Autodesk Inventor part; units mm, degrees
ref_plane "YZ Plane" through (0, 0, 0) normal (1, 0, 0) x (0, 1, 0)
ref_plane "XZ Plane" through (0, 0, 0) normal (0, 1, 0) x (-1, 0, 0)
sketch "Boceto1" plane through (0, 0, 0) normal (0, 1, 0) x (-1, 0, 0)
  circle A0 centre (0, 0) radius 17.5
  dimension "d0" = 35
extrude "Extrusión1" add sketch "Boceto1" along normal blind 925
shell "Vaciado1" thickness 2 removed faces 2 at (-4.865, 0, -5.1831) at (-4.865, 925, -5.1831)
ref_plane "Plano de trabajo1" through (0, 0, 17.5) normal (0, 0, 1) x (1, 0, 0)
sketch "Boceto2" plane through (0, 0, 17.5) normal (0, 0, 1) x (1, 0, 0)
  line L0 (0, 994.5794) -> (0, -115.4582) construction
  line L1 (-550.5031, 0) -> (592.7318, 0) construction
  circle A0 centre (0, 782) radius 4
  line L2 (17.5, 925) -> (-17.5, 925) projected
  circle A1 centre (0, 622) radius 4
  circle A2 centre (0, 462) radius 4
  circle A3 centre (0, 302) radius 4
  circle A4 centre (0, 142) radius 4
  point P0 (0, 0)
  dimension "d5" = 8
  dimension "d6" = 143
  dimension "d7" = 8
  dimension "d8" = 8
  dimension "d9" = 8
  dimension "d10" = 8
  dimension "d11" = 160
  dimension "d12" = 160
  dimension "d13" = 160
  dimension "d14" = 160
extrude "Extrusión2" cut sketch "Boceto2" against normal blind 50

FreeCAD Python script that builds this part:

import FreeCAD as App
import Part
import Sketcher
Q = App.Units.Quantity


def faces_at(feature, points):
    """Names of the faces that lie closest to the given points."""
    faces = feature.Shape.Faces
    near = lambda p: min(range(len(faces)), key=lambda i: faces[i].distToShape(Part.Vertex(*p))[0])
    return sorted({f"Face{near(p) + 1}" for p in points})

doc = App.newDocument("Part")
body = doc.addObject("PartDesign::Body", "Body")

sketch1 = body.newObject("Sketcher::SketchObject", "Sketch")
sketch1.AttachmentSupport = (doc.getObject("XZ_Plane"), [""])
sketch1.MapMode = "FlatFace"
sketch1.addGeometry(Part.Circle(App.Vector(0, 0, 0), App.Vector(0, 0, 1), 18), False)
sketch1.addConstraint(Sketcher.Constraint("Coincident", 0, 3, -1, 1))
sketch1.addConstraint(Sketcher.Constraint("Diameter", 0, Q("35 mm")))
pad1 = body.newObject("PartDesign::Pad", "Pad")
pad1.Profile = sketch1
pad1.Length = 925
pad1.Reversed = True
doc.recompute()

thickness = body.newObject("PartDesign::Thickness", "Thickness")
thickness.Base = (pad1, faces_at(pad1, [(-4.865, 0, -5.183), (-4.865, 925, -5.183)]))
thickness.Value = 2
thickness.Reversed = True
thickness.Join = "Intersection"

sketch2 = body.newObject("Sketcher::SketchObject", "Sketch001")
sketch2.AttachmentSupport = (doc.getObject("XY_Plane"), [""])
sketch2.MapMode = "FlatFace"
sketch2.AttachmentOffset = App.Placement(App.Vector(0, 0, 17.5), App.Rotation())
sketch2.addGeometry(Part.Circle(App.Vector(0, 782, 0), App.Vector(0, 0, 1), 4), False)
sketch2.addGeometry(Part.Circle(App.Vector(0, 622, 0), App.Vector(0, 0, 1), 4), False)
sketch2.addGeometry(Part.Circle(App.Vector(0, 462, 0), App.Vector(0, 0, 1), 4), False)
sketch2.addGeometry(Part.Circle(App.Vector(0, 302, 0), App.Vector(0, 0, 1), 4), False)
sketch2.addGeometry(Part.Circle(App.Vector(0, 142, 0), App.Vector(0, 0, 1), 4), False)
sketch2.addConstraint(Sketcher.Constraint("Equal", 0, 1))
sketch2.addConstraint(Sketcher.Constraint("Equal", 1, 2))
sketch2.addConstraint(Sketcher.Constraint("Equal", 2, 3))
sketch2.addConstraint(Sketcher.Constraint("Equal", 3, 4))
sketch2.addConstraint(Sketcher.Constraint("PointOnObject", 0, 3, -2))
sketch2.addConstraint(Sketcher.Constraint("PointOnObject", 1, 3, -2))
sketch2.addConstraint(Sketcher.Constraint("PointOnObject", 2, 3, -2))
sketch2.addConstraint(Sketcher.Constraint("PointOnObject", 3, 3, -2))
sketch2.addConstraint(Sketcher.Constraint("PointOnObject", 4, 3, -2))
sketch2.addConstraint(Sketcher.Constraint("Diameter", 0, Q("8 mm")))
sketch2.addConstraint(Sketcher.Constraint("DistanceY", 1, 3, 0, 3, Q("160 mm")))
sketch2.addConstraint(Sketcher.Constraint("DistanceY", 2, 3, 1, 3, Q("160 mm")))
sketch2.addConstraint(Sketcher.Constraint("DistanceY", 3, 3, 2, 3, Q("160 mm")))
sketch2.addConstraint(Sketcher.Constraint("DistanceY", 4, 3, 3, 3, Q("160 mm")))
sketch2.addConstraint(Sketcher.Constraint("DistanceY", -1, 1, 0, 3, Q("782 mm")))
pocket1 = body.newObject("PartDesign::Pocket", "Pocket")
pocket1.Profile = sketch2
pocket1.Length = 50

doc.recompute()
